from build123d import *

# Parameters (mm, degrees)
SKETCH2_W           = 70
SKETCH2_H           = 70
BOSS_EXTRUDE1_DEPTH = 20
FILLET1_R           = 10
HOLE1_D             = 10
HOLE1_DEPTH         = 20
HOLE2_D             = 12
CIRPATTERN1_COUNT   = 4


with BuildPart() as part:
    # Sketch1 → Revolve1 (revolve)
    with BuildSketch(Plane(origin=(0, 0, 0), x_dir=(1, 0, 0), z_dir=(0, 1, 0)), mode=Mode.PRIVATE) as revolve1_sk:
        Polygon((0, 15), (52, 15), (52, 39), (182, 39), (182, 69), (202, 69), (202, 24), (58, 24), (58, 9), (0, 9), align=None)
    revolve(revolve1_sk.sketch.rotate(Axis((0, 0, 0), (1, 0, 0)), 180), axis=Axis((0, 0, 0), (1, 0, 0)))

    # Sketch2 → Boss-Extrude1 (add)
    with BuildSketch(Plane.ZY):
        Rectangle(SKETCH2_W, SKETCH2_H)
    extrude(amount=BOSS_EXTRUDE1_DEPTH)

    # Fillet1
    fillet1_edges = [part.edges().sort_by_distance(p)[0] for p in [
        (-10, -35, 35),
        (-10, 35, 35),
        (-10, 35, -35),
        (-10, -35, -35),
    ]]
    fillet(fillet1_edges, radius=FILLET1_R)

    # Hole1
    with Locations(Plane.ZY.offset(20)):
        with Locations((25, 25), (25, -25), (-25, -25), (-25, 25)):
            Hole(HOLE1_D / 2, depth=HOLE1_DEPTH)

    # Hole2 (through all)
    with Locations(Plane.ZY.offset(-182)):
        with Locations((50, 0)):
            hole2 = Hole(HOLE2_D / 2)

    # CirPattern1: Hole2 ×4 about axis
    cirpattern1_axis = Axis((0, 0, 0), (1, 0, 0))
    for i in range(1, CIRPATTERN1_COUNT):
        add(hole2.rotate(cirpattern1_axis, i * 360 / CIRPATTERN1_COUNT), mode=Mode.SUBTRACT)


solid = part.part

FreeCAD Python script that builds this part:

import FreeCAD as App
import Part
import Sketcher
Q = App.Units.Quantity


def edges_at(feature, points):
    """Names of the edges that pass closest to the given points."""
    edges = feature.Shape.Edges
    near = lambda p: min(range(len(edges)), key=lambda i: edges[i].distToShape(Part.Vertex(*p))[0])
    return sorted({f"Edge{near(p) + 1}" for p in points})


def add_polygon(sketch, points):
    """Adds a closed chain of lines whose ends are joined by coincident constraints."""
    first, n = sketch.GeometryCount, len(points)
    for a, b in zip(points, points[1:] + points[:1]):
        sketch.addGeometry(Part.LineSegment(App.Vector(*a, 0), App.Vector(*b, 0)), False)
    for i in range(n):
        sketch.addConstraint(Sketcher.Constraint("Coincident", first + i, 2, first + (i + 1) % n, 1))

doc = App.newDocument("Part")
params = doc.addObject("Spreadsheet::Sheet", "Params")
for row, (alias, value) in enumerate([
    ("sketch1_width", "52 mm"),
    ("sketch1_width2", "58 mm"),
    ("sketch1_width3", "144 mm"),
    ("sketch1_width4", "20 mm"),
    ("sketch1_height", "6 mm"),
    ("revolution_angle", "360 deg"),
    ("sketch2_width", "70 mm"),
    ("pad1_length", "20 mm"),
    ("fillet_radius", "10 mm"),
    ("sketch3_diameter", "10 mm"),
    ("hole_diameter", "10 mm"),
    ("hole_depth", "20 mm"),
    ("sketch4_diameter", "12 mm"),
    ("hole2_diameter", "12 mm"),
], start=1):
    params.set(f"A{row}", alias)
    params.set(f"B{row}", "=" + value)
    params.setAlias(f"B{row}", alias)

body = doc.addObject("PartDesign::Body", "Body")

sketch1 = doc.addObject("Sketcher::SketchObject", "Sketch")
body.addObject(sketch1)
sketch1.AttachmentSupport = (doc.XZ_Plane, [""])
sketch1.MapMode = "FlatFace"
add_polygon(sketch1, [(52, -15), (0, -15), (0, -9), (58, -9), (58, -24), (202, -24), (202, -69), (182, -69), (182, -39), (52, -39)])
sketch1.addConstraint(Sketcher.Constraint("Horizontal", 0))
sketch1.addConstraint(Sketcher.Constraint("Vertical", 1))
sketch1.addConstraint(Sketcher.Constraint("Horizontal", 2))
sketch1.addConstraint(Sketcher.Constraint("Vertical", 3))
sketch1.addConstraint(Sketcher.Constraint("Horizontal", 4))
sketch1.addConstraint(Sketcher.Constraint("Vertical", 5))
sketch1.addConstraint(Sketcher.Constraint("Horizontal", 6))
sketch1.addConstraint(Sketcher.Constraint("Vertical", 7))
sketch1.addConstraint(Sketcher.Constraint("Horizontal", 8))
sketch1.addConstraint(Sketcher.Constraint("Vertical", 9))
sketch1.addConstraint(Sketcher.Constraint("PointOnObject", 0, 2, -2))
sketch1.addConstraint(Sketcher.Constraint("DistanceX", 0, 2, 0, 1, Q("52 mm")))
sketch1.addConstraint(Sketcher.Constraint("DistanceX", 2, 1, 2, 2, Q("58 mm")))
sketch1.addConstraint(Sketcher.Constraint("DistanceX", 4, 1, 4, 2, Q("144 mm")))
sketch1.addConstraint(Sketcher.Constraint("DistanceX", 6, 2, 6, 1, Q("20 mm")))
sketch1.addConstraint(Sketcher.Constraint("DistanceY", 1, 1, 1, 2, Q("6 mm")))
sketch1.addConstraint(Sketcher.Constraint("DistanceY", 3, 2, 3, 1, Q("15 mm")))
sketch1.addConstraint(Sketcher.Constraint("DistanceY", 5, 2, 5, 1, Q("45 mm")))
sketch1.addConstraint(Sketcher.Constraint("DistanceY", 7, 1, 7, 2, Q("30 mm")))
sketch1.addConstraint(Sketcher.Constraint("DistanceY", 0, 2, -1, 1, Q("15 mm")))
sketch1.setExpression("Constraints[21]", "Params.sketch1_width")
sketch1.setExpression("Constraints[22]", "Params.sketch1_width2")
sketch1.setExpression("Constraints[23]", "Params.sketch1_width3")
sketch1.setExpression("Constraints[24]", "Params.sketch1_width4")
sketch1.setExpression("Constraints[25]", "Params.sketch1_height")
revolution = doc.addObject("PartDesign::Revolution", "Revolution")
body.addObject(revolution)
revolution.Profile = sketch1
revolution.ReferenceAxis = (sketch1, ["H_Axis"])
revolution.setExpression("Angle", "Params.revolution_angle")

sketch2 = doc.addObject("Sketcher::SketchObject", "Sketch001")
body.addObject(sketch2)
sketch2.AttachmentSupport = (doc.YZ_Plane, [""])
sketch2.MapMode = "FlatFace"
add_polygon(sketch2, [(35, -35), (-35, -35), (-35, 35), (35, 35)])
sketch2.addConstraint(Sketcher.Constraint("Horizontal", 0))
sketch2.addConstraint(Sketcher.Constraint("Vertical", 1))
sketch2.addConstraint(Sketcher.Constraint("Horizontal", 2))
sketch2.addConstraint(Sketcher.Constraint("Vertical", 3))
sketch2.addConstraint(Sketcher.Constraint("Symmetric", 0, 2, 2, 2, -1, 1))
sketch2.addConstraint(Sketcher.Constraint("Equal", 2, 1))
sketch2.addConstraint(Sketcher.Constraint("DistanceX", 0, 2, 0, 1, Q("70 mm")))
sketch2.setExpression("Constraints[10]", "Params.sketch2_width")
pad1 = doc.addObject("PartDesign::Pad", "Pad")
body.addObject(pad1)
pad1.Profile = sketch2
pad1.setExpression("Length", "Params.pad1_length")
pad1.Reversed = True
doc.recompute()

fillet = doc.addObject("PartDesign::Fillet", "Fillet")
body.addObject(fillet)
fillet.Base = (pad1, edges_at(pad1, [
    (-10, -35, 35),
    (-10, 35, 35),
    (-10, 35, -35),
    (-10, -35, -35),
]))
fillet.setExpression("Radius", "Params.fillet_radius")

sketch3 = doc.addObject("Sketcher::SketchObject", "Sketch002")
body.addObject(sketch3)
sketch3.AttachmentSupport = (doc.YZ_Plane, [""])
sketch3.MapMode = "FlatFace"
sketch3.AttachmentOffset = App.Placement(App.Vector(0, 0, -20), App.Rotation())
sketch3.addGeometry(Part.Circle(App.Vector(25, 25, 0), App.Vector(0, 0, 1), 5), False)
sketch3.addGeometry(Part.Circle(App.Vector(-25, 25, 0), App.Vector(0, 0, 1), 5), False)
sketch3.addGeometry(Part.Circle(App.Vector(-25, -25, 0), App.Vector(0, 0, 1), 5), False)
sketch3.addGeometry(Part.Circle(App.Vector(25, -25, 0), App.Vector(0, 0, 1), 5), False)
sketch3.addConstraint(Sketcher.Constraint("Equal", 0, 1))
sketch3.addConstraint(Sketcher.Constraint("Equal", 1, 2))
sketch3.addConstraint(Sketcher.Constraint("Equal", 2, 3))
sketch3.addConstraint(Sketcher.Constraint("Symmetric", 0, 3, 2, 3, -1, 1))
sketch3.addConstraint(Sketcher.Constraint("Symmetric", 1, 3, 3, 3, -1, 1))
sketch3.addConstraint(Sketcher.Constraint("Symmetric", 0, 3, 1, 3, -2))
sketch3.addConstraint(Sketcher.Constraint("Diameter", 0, Q("10 mm")))
sketch3.addConstraint(Sketcher.Constraint("DistanceX", -1, 1, 0, 3, Q("25 mm")))
sketch3.addConstraint(Sketcher.Constraint("DistanceY", -1, 1, 0, 3, Q("25 mm")))
sketch3.setExpression("Constraints[6]", "Params.sketch3_diameter")
doc.recompute()
hole = doc.addObject("PartDesign::Hole", "Hole")
body.addObject(hole)
hole.Profile = sketch3
hole.ThreadType = "None"
hole.setExpression("Diameter", "Params.hole_diameter")
hole.DepthType = "Dimension"
hole.setExpression("Depth", "Params.hole_depth")
hole.DrillPoint = "Flat"
hole.Reversed = True

sketch4 = doc.addObject("Sketcher::SketchObject", "Sketch003")
body.addObject(sketch4)
sketch4.AttachmentSupport = (doc.YZ_Plane, [""])
sketch4.MapMode = "FlatFace"
sketch4.AttachmentOffset = App.Placement(App.Vector(0, 0, 182), App.Rotation())
sketch4.addGeometry(Part.Circle(App.Vector(0, 50, 0), App.Vector(0, 0, 1), 6), False)
sketch4.addConstraint(Sketcher.Constraint("PointOnObject", 0, 3, -2))
sketch4.addConstraint(Sketcher.Constraint("Diameter", 0, Q("12 mm")))
sketch4.addConstraint(Sketcher.Constraint("DistanceY", -1, 1, 0, 3, Q("50 mm")))
sketch4.setExpression("Constraints[1]", "Params.sketch4_diameter")
doc.recompute()
hole2 = doc.addObject("PartDesign::Hole", "Hole001")
body.addObject(hole2)
hole2.Profile = sketch4
hole2.ThreadType = "None"
hole2.setExpression("Diameter", "Params.hole2_diameter")
hole2.DepthType = "ThroughAll"
hole2.Reversed = True
doc.recompute()

polarpattern = doc.addObject("PartDesign::PolarPattern", "PolarPattern")
body.addObject(polarpattern)
polarpattern.Originals = [hole2]
polarpattern.Axis = (doc.X_Axis, [""])
polarpattern.Angle = 360
polarpattern.Occurrences = 4
body.Tip = polarpattern

doc.recompute()
